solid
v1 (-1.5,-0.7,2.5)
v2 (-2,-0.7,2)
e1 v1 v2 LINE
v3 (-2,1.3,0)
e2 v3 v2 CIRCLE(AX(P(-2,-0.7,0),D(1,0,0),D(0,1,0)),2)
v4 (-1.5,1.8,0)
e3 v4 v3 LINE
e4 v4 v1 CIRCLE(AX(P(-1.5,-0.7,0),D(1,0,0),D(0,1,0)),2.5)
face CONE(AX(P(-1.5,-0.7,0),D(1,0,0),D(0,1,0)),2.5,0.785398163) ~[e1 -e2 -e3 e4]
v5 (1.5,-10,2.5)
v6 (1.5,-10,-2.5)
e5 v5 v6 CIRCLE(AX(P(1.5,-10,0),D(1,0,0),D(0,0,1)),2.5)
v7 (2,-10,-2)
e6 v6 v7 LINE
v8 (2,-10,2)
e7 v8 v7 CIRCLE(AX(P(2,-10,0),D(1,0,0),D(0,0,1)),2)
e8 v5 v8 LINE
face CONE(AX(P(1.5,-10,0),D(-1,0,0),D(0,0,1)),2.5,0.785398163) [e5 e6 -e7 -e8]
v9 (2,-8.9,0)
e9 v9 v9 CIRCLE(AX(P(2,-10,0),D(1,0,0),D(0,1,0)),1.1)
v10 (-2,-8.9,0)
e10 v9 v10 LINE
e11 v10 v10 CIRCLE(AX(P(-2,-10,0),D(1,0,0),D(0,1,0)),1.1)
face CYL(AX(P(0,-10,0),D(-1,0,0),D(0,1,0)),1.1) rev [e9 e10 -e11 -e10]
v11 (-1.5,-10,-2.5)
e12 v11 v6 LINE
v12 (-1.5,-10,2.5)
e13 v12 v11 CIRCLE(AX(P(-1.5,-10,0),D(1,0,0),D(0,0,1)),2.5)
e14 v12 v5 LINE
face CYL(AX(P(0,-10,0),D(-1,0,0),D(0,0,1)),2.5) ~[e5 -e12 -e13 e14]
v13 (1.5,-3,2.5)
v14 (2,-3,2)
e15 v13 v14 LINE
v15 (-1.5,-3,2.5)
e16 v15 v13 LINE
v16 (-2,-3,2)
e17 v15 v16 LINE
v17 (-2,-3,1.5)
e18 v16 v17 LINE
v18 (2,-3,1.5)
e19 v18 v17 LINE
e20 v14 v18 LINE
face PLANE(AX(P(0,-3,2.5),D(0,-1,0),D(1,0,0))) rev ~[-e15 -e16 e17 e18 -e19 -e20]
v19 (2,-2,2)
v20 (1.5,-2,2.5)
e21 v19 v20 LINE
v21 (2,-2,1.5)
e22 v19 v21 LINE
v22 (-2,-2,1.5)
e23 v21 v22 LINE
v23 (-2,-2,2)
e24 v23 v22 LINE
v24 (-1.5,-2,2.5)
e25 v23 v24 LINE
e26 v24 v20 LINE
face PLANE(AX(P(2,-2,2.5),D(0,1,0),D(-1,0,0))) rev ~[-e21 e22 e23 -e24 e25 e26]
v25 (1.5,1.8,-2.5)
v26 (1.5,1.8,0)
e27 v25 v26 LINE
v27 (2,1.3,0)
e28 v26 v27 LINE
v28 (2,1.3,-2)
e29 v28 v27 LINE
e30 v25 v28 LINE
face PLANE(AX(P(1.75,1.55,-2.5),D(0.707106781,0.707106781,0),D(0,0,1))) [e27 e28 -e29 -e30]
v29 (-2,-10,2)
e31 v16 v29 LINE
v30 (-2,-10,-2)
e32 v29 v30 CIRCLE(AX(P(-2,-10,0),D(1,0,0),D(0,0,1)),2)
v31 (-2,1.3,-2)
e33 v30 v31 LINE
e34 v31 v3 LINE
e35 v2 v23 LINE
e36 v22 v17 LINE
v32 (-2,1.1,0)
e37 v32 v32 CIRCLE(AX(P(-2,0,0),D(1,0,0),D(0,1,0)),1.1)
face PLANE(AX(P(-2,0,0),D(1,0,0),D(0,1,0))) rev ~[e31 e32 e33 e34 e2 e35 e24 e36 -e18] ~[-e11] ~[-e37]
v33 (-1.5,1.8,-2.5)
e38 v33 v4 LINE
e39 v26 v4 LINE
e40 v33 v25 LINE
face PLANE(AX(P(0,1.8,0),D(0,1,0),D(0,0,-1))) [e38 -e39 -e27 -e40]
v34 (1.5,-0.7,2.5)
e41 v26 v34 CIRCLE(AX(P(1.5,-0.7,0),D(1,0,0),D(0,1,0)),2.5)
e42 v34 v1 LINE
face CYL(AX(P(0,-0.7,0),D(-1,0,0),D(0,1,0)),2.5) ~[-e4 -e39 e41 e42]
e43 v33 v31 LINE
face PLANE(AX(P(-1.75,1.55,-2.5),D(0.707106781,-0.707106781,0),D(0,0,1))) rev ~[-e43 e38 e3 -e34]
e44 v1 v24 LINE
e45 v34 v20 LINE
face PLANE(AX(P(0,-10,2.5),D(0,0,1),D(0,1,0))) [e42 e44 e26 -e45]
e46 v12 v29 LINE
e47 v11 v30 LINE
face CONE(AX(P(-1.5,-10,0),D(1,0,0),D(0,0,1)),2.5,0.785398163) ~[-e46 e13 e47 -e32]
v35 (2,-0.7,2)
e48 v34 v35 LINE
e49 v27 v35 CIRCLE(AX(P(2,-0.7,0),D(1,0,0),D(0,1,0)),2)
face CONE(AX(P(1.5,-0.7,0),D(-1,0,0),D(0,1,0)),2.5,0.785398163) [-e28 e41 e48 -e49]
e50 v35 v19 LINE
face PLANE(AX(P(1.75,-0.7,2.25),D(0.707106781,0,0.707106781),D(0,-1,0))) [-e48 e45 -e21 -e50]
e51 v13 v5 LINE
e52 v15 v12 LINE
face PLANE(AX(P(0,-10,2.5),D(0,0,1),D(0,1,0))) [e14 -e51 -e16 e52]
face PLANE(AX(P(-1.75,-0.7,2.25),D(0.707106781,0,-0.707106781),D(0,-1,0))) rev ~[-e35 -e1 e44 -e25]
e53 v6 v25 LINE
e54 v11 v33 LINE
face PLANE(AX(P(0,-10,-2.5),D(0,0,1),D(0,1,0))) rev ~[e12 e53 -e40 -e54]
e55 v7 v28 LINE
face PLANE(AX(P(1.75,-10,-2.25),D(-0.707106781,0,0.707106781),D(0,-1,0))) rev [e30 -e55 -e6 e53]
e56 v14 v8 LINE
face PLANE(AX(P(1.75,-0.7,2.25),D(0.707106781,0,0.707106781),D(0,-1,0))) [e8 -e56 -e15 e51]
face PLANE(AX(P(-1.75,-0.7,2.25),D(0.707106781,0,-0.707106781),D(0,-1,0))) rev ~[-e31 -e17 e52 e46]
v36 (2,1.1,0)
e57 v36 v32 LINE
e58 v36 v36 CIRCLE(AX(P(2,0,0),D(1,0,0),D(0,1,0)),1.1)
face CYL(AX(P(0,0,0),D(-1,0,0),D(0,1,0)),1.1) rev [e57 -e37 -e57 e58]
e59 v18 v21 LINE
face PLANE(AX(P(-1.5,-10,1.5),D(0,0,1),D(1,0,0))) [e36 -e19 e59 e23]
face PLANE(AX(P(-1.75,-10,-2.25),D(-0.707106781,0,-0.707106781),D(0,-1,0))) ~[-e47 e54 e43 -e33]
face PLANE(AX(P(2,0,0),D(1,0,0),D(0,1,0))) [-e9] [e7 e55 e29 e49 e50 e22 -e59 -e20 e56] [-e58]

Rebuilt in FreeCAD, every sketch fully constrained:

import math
import FreeCAD as App
import Part
import Sketcher
from FreeCAD import Vector
Q = App.Units.Quantity


def edges_at(feature, points):
    """Names of the edges that pass closest to the given points."""
    edges = feature.Shape.Edges
    near = lambda p: min(range(len(edges)), key=lambda i: edges[i].distToShape(Part.Vertex(*p))[0])
    return sorted({f"Edge{near(p) + 1}" for p in points})

doc = App.newDocument("Part")
params = doc.addObject("Spreadsheet::Sheet", "Params")
for row, (alias, value) in enumerate([
    ("sketch1_diameter", "2.2 mm"),
    ("sketch1_radius", "2.5 mm"),
    ("pad1_length", "4 mm"),
    ("chamfer_size", "0.5 mm"),
    ("sketch2_height", "1 mm"),
    ("pocket1_length", "1 mm"),
], start=1):
    params.set(f"A{row}", alias)
    params.set(f"B{row}", "=" + value)
    params.setAlias(f"B{row}", alias)

body = doc.addObject("PartDesign::Body", "Body")

# Sketch on YZ plane
sketch1 = body.newObject("Sketcher::SketchObject", "Sketch")
sketch1.AttachmentSupport = (doc.getObject("YZ_Plane"), [""])
sketch1.MapMode = "FlatFace"
sketch1.addGeometry(Part.LineSegment(Vector(-0.7, 2.5, 0), Vector(-10, 2.5, 0)), False)
sketch1.addGeometry(Part.ArcOfCircle(Part.Circle(Vector(-10, 0, 0), Vector(0, 0, 1), 2.5), math.radians(90), math.radians(270)), False)
sketch1.addGeometry(Part.LineSegment(Vector(-10, -2.5, 0), Vector(1.8, -2.5, 0)), False)
sketch1.addGeometry(Part.LineSegment(Vector(1.8, -2.5, 0), Vector(1.8, 0, 0)), False)
sketch1.addGeometry(Part.ArcOfCircle(Part.Circle(Vector(-0.7, 0, 0), Vector(0, 0, 1), 2.5), math.radians(0), math.radians(90)), False)
sketch1.addGeometry(Part.Circle(Vector(-10, 0, 0), Vector(0, 0, 1), 1.1), False)
sketch1.addGeometry(Part.Circle(Vector(0, 0, 0), Vector(0, 0, 1), 1.1), False)
sketch1.addConstraint(Sketcher.Constraint("Tangent", 0, 2, 1, 1))
sketch1.addConstraint(Sketcher.Constraint("Tangent", 1, 2, 2, 1))
sketch1.addConstraint(Sketcher.Constraint("Coincident", 2, 2, 3, 1))
sketch1.addConstraint(Sketcher.Constraint("Tangent", 3, 2, 4, 1))
sketch1.addConstraint(Sketcher.Constraint("Tangent", 4, 2, 0, 1))
sketch1.addConstraint(Sketcher.Constraint("Horizontal", 0))
sketch1.addConstraint(Sketcher.Constraint("Horizontal", 2))
sketch1.addConstraint(Sketcher.Constraint("Vertical", 3))
sketch1.addConstraint(Sketcher.Constraint("Coincident", 6, 3, -1, 1))
sketch1.addConstraint(Sketcher.Constraint("Coincident", 5, 3, 1, 3))
sketch1.addConstraint(Sketcher.Constraint("Equal", 1, 4))
sketch1.addConstraint(Sketcher.Constraint("Equal", 5, 6))
sketch1.addConstraint(Sketcher.Constraint("PointOnObject", 1, 3, -1))
sketch1.addConstraint(Sketcher.Constraint("Diameter", 5, Q("2.2 mm")))
sketch1.addConstraint(Sketcher.Constraint("Radius", 1, Q("2.5 mm")))
sketch1.addConstraint(Sketcher.Constraint("DistanceX", 1, 3, -1, 1, Q("10 mm")))
sketch1.addConstraint(Sketcher.Constraint("DistanceX", -1, 1, 2, 2, Q("1.8 mm")))
sketch1.setExpression("Constraints[13]", "Params.sketch1_diameter")
sketch1.setExpression("Constraints[14]", "Params.sketch1_radius")
pad1 = body.newObject("PartDesign::Pad", "Pad")
pad1.Profile = sketch1
pad1.setExpression("Length", "Params.pad1_length")
pad1.Midplane = True
doc.recompute()

chamfer = body.newObject("PartDesign::Chamfer", "Chamfer")
chamfer.Base = (pad1, edges_at(pad1, [
    (2, 1.068, 1.768),
    (2, -5.35, 2.5),
    (2, -12.5, 0),
    (2, -4.1, -2.5),
    (2, 1.8, -1.25),
    (-2, 1.068, 1.768),
    (-2, -5.35, 2.5),
    (-2, -12.5, 0),
    (-2, -4.1, -2.5),
    (-2, 1.8, -1.25),
]))
chamfer.setExpression("Size", "Params.chamfer_size")

# Sketch on XY plane
sketch2 = body.newObject("Sketcher::SketchObject", "Sketch001")
sketch2.AttachmentSupport = (doc.getObject("XY_Plane"), [""])
sketch2.MapMode = "FlatFace"
sketch2.AttachmentOffset = App.Placement(Vector(0, 0, 2.5), App.Rotation())
sketch2.addGeometry(Part.LineSegment(Vector(2, -2, 0), Vector(-2, -2, 0)), False)
sketch2.addGeometry(Part.LineSegment(Vector(-2, -2, 0), Vector(-2, -3, 0)), False)
sketch2.addGeometry(Part.LineSegment(Vector(-2, -3, 0), Vector(2, -3, 0)), False)
sketch2.addGeometry(Part.LineSegment(Vector(2, -3, 0), Vector(2, -2, 0)), False)
sketch2.addConstraint(Sketcher.Constraint("Coincident", 0, 2, 1, 1))
sketch2.addConstraint(Sketcher.Constraint("Coincident", 1, 2, 2, 1))
sketch2.addConstraint(Sketcher.Constraint("Coincident", 2, 2, 3, 1))
sketch2.addConstraint(Sketcher.Constraint("Coincident", 3, 2, 0, 1))
sketch2.addConstraint(Sketcher.Constraint("Horizontal", 0))
sketch2.addConstraint(Sketcher.Constraint("Vertical", 1))
sketch2.addConstraint(Sketcher.Constraint("Horizontal", 2))
sketch2.addConstraint(Sketcher.Constraint("Vertical", 3))
sketch2.addConstraint(Sketcher.Constraint("DistanceY", 1, 2, 1, 1, Q("1 mm")))
sketch2.addConstraint(Sketcher.Constraint("DistanceX", 0, 2, -1, 1, Q("2 mm")))
sketch2.addConstraint(Sketcher.Constraint("DistanceY", 0, 2, -1, 1, Q("2 mm")))
sketch2.addConstraint(Sketcher.Constraint("DistanceX", -1, 1, 2, 2, Q("2 mm")))
sketch2.setExpression("Constraints[8]", "Params.sketch2_height")
pocket1 = body.newObject("PartDesign::Pocket", "Pocket")
pocket1.Profile = sketch2
pocket1.setExpression("Length", "Params.pocket1_length")

doc.recompute()
